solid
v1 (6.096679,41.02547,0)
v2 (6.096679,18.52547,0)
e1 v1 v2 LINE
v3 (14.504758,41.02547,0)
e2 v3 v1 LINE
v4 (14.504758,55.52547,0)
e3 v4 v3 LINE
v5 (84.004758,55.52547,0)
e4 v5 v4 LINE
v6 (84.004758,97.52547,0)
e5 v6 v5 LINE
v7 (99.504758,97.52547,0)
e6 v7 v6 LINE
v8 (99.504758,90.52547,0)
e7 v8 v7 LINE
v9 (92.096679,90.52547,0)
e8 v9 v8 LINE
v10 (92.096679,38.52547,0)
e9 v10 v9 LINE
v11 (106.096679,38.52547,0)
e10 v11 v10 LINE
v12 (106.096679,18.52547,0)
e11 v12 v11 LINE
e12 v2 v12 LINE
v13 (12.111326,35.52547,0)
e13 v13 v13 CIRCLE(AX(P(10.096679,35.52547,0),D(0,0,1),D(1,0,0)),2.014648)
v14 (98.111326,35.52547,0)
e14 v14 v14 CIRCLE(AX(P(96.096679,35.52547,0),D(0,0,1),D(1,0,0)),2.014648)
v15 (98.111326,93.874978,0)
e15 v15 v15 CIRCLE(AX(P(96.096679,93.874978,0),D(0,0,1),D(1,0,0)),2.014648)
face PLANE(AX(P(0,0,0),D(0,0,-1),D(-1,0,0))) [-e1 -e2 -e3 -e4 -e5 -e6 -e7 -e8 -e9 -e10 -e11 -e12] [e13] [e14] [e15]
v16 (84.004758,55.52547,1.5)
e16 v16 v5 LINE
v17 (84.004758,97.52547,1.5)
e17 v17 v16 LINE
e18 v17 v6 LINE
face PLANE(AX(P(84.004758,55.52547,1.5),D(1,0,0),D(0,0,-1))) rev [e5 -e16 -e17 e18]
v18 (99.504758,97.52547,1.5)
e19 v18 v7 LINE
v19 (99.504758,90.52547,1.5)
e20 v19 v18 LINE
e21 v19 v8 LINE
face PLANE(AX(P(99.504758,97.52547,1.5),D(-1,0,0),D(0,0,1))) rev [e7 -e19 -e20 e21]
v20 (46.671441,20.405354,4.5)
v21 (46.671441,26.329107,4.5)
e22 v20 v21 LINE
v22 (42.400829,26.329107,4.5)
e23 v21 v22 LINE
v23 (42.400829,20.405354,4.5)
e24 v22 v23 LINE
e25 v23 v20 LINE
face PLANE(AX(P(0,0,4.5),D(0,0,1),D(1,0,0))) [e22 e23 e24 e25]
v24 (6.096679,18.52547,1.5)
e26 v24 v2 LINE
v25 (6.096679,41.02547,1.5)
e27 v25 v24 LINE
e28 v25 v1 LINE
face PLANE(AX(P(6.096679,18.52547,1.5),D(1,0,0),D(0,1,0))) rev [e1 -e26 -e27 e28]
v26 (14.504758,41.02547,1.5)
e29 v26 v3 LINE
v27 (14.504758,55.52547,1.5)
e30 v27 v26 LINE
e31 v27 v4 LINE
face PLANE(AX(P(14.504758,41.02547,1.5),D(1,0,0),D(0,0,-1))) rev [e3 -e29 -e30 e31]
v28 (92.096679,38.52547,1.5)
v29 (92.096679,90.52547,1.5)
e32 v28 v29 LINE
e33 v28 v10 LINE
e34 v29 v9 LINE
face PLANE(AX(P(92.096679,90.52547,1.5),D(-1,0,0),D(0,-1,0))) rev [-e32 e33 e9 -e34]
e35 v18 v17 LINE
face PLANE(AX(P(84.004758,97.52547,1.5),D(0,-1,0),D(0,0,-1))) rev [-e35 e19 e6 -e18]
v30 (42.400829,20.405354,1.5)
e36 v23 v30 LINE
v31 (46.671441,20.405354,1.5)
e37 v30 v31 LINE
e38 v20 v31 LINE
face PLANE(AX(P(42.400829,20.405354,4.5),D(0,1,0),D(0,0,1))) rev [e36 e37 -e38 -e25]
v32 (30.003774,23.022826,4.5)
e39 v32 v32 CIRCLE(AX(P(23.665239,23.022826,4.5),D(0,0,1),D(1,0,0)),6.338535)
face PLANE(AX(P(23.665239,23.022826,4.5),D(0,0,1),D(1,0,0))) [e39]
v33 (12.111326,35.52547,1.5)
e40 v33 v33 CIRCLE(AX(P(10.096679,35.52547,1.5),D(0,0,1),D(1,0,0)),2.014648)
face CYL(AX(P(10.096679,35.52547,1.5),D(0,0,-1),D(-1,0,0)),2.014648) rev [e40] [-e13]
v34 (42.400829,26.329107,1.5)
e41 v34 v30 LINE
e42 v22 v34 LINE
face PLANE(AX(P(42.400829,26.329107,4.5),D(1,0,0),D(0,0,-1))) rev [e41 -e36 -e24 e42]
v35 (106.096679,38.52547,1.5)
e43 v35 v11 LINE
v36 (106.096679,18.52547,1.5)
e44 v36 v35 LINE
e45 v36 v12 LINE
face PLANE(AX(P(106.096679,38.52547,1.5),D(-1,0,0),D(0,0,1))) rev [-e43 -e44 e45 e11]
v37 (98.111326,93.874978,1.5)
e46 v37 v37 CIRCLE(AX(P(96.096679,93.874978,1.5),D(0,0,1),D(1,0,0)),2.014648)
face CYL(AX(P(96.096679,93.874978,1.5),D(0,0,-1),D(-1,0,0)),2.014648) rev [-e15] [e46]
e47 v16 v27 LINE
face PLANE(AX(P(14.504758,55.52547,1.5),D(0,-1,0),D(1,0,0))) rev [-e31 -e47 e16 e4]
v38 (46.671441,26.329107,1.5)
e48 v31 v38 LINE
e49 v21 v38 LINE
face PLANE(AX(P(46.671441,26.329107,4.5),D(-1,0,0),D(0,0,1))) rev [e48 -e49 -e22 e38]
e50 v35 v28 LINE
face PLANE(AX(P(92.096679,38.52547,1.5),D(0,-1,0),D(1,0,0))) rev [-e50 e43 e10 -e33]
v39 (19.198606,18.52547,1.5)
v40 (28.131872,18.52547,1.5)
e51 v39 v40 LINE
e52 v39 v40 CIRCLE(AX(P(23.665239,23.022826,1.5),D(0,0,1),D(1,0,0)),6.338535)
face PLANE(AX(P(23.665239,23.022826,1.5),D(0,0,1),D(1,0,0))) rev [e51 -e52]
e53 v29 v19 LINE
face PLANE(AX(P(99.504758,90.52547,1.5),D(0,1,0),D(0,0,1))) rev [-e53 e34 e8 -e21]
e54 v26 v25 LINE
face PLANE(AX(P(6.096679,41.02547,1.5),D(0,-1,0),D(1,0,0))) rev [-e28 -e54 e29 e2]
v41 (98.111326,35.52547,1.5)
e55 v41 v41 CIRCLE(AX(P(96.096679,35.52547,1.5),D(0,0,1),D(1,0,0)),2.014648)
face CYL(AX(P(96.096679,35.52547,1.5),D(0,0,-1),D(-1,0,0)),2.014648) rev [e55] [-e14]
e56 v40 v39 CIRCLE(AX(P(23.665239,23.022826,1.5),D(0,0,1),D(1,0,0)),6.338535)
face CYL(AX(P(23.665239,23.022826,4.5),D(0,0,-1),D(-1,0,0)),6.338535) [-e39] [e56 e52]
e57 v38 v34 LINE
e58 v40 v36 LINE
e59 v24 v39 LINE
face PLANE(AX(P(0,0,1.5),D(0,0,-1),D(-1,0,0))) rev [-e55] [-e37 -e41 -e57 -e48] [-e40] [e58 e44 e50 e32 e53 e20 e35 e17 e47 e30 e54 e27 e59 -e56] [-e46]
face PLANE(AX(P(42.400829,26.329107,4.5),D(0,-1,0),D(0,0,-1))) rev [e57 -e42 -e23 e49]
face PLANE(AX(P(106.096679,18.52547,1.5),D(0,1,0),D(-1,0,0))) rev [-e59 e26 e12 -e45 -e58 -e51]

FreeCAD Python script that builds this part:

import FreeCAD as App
import Part
import Sketcher

V = App.Vector
Q = App.Units.Quantity


def add_polygon(sketch, points):
    """Adds a closed chain of lines whose ends are joined by coincident constraints."""
    first, n = sketch.GeometryCount, len(points)
    for a, b in zip(points, points[1:] + points[:1]):
        sketch.addGeometry(Part.LineSegment(App.Vector(*a, 0), App.Vector(*b, 0)), False)
    for i in range(n):
        sketch.addConstraint(Sketcher.Constraint("Coincident", first + i, 2, first + (i + 1) % n, 1))

doc = App.newDocument("Part")
body = doc.addObject("PartDesign::Body", "Body")

# Sketch on XY plane
sketch1 = doc.addObject("Sketcher::SketchObject", "Sketch")
body.addObject(sketch1)
sketch1.AttachmentSupport = (doc.XY_Plane, [""])
sketch1.MapMode = "FlatFace"
add_polygon(sketch1, [(6.1, 41), (6.1, 18.5), (106.1, 18.5), (106.1, 38.5), (92.1, 38.5), (92.1, 90.5), (99.5, 90.5), (99.5, 97.5), (84, 97.5), (84, 55.5), (14.5, 55.5), (14.5, 41)])  # lines 0-11
sketch1.addGeometry(Part.Circle(V(96.1, 35.5, 0), V(0, 0, 1), 2), False)  # 12
sketch1.addGeometry(Part.Circle(V(10.1, 35.5, 0), V(0, 0, 1), 2), False)  # 13
sketch1.addGeometry(Part.Circle(V(96.1, 93.9, 0), V(0, 0, 1), 2), False)  # 14
sketch1.addConstraint([
    Sketcher.Constraint("Vertical", 0),
    Sketcher.Constraint("Horizontal", 1),
    Sketcher.Constraint("Vertical", 2),
    Sketcher.Constraint("Horizontal", 3),
    Sketcher.Constraint("Vertical", 4),
    Sketcher.Constraint("Horizontal", 5),
    Sketcher.Constraint("Vertical", 6),
    Sketcher.Constraint("Horizontal", 7),
    Sketcher.Constraint("Vertical", 8),
    Sketcher.Constraint("Horizontal", 9),
    Sketcher.Constraint("Vertical", 10),
    Sketcher.Constraint("Horizontal", 11),
    Sketcher.Constraint("Equal", 12, 13),
    Sketcher.Constraint("Equal", 13, 14),
    Sketcher.Constraint("Horizontal", 12, 3, 13, 3),
    Sketcher.Constraint("Vertical", 12, 3, 14, 3),
    Sketcher.Constraint("DistanceX", 1, 1, 1, 2, Q("100 mm")),
    Sketcher.Constraint("DistanceX", 3, 2, 3, 1, Q("14 mm")),
    Sketcher.Constraint("DistanceY", 2, 1, 2, 2, Q("20 mm")),
    Sketcher.Constraint("DistanceY", 4, 1, 4, 2, Q("52 mm")),
    Sketcher.Constraint("DistanceY", 6, 1, 6, 2, Q("7 mm")),
    Sketcher.Constraint("DistanceY", 8, 2, 8, 1, Q("42 mm")),
    Sketcher.Constraint("DistanceX", 7, 2, 7, 1, Q("15.5 mm")),
    Sketcher.Constraint("DistanceX", 9, 2, 9, 1, Q("69.5 mm")),
    Sketcher.Constraint("DistanceY", 0, 2, 0, 1, Q("22.5 mm")),
    Sketcher.Constraint("DistanceX", 13, 3, 12, 3, Q("86 mm")),
    Sketcher.Constraint("DistanceX", 0, 2, 13, 3, Q("4 mm")),
    Sketcher.Constraint("DistanceY", 0, 2, 13, 3, Q("17 mm")),
    Sketcher.Constraint("Diameter", 12, Q("4.029295 mm")),
    Sketcher.Constraint("DistanceX", 5, 1, 5, 2, Q("7.408079 mm")),
    Sketcher.Constraint("DistanceX", -1, 1, 12, 3, Q("96.096679 mm")),
    Sketcher.Constraint("DistanceY", -1, 1, 12, 3, Q("35.52547 mm")),
    Sketcher.Constraint("DistanceY", -1, 1, 14, 3, Q("93.874978 mm")),
])
pad1 = doc.addObject("PartDesign::Pad", "Pad")
body.addObject(pad1)
pad1.Profile = sketch1
pad1.Length = 1.5

# Sketch on XY plane
sketch2 = doc.addObject("Sketcher::SketchObject", "Sketch001")
body.addObject(sketch2)
sketch2.AttachmentSupport = (doc.XY_Plane, [""])
sketch2.MapMode = "FlatFace"
sketch2.AttachmentOffset = App.Placement(V(0, 0, 1.5), App.Rotation())
sketch2.addGeometry(Part.Circle(V(23.7, 23, 0), V(0, 0, 1), 6.3), False)  # 0
add_polygon(sketch2, [(42.4, 26.3), (42.4, 20.4), (46.7, 20.4), (46.7, 26.3)])  # lines 1-4
sketch2.addConstraint([
    Sketcher.Constraint("Vertical", 1),
    Sketcher.Constraint("Horizontal", 2),
    Sketcher.Constraint("Vertical", 3),
    Sketcher.Constraint("Horizontal", 4),
    Sketcher.Constraint("Diameter", 0, Q("12.67707 mm")),
    Sketcher.Constraint("DistanceX", 2, 1, 2, 2, Q("4.270612 mm")),
    Sketcher.Constraint("DistanceY", 1, 2, 1, 1, Q("5.923753 mm")),
    Sketcher.Constraint("DistanceX", -1, 1, 0, 3, Q("23.665239 mm")),
    Sketcher.Constraint("DistanceX", -1, 1, 1, 2, Q("42.400829 mm")),
    Sketcher.Constraint("DistanceY", 0, 3, 3, 2, Q("3.306281 mm")),
    Sketcher.Constraint("DistanceY", -1, 1, 0, 3, Q("23.022826 mm")),
])
pad2 = doc.addObject("PartDesign::Pad", "Pad001")
body.addObject(pad2)
pad2.Profile = sketch2
pad2.Length = 3

doc.recompute()
